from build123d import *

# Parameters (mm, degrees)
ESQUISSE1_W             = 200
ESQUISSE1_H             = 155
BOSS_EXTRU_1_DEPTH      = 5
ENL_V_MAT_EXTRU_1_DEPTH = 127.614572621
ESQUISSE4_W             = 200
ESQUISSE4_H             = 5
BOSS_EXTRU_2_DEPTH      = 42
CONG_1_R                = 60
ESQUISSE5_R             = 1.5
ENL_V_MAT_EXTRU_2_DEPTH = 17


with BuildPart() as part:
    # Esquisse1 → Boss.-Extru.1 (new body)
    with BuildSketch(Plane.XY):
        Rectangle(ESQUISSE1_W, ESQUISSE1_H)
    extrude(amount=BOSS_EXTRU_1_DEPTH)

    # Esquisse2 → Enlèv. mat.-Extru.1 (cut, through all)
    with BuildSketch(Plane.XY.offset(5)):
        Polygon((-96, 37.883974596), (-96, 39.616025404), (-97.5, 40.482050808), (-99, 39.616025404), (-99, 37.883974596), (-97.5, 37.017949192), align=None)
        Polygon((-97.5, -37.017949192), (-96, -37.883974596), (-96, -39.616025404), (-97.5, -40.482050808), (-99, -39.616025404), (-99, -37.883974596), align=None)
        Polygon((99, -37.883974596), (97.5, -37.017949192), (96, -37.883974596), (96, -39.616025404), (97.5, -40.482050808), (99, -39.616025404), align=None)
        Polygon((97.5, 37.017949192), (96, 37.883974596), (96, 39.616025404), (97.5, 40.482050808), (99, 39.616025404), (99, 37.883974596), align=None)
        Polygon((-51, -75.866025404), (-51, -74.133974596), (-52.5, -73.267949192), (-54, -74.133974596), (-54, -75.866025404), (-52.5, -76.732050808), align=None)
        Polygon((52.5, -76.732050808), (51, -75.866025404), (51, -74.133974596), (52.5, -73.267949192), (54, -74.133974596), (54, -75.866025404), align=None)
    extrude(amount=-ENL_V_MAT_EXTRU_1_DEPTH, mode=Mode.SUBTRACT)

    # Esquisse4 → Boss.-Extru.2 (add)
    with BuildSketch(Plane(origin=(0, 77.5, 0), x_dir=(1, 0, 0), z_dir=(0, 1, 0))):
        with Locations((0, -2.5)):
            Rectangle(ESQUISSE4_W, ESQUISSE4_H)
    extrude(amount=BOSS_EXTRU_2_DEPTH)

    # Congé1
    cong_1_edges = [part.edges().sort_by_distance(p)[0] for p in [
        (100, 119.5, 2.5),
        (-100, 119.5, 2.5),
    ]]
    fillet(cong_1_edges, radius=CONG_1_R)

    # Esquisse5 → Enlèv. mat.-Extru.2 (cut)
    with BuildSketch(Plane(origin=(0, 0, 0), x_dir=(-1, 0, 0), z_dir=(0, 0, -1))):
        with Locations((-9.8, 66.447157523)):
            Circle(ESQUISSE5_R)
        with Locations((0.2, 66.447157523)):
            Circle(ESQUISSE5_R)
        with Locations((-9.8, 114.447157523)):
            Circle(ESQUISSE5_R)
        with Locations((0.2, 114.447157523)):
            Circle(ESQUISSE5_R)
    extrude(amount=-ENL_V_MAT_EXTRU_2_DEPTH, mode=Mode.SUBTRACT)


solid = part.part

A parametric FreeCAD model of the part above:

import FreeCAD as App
import Part
import Sketcher

V = App.Vector
Q = App.Units.Quantity


def edges_at(feature, points):
    """Names of the edges that pass closest to the given points."""
    edges = feature.Shape.Edges
    near = lambda p: min(range(len(edges)), key=lambda i: edges[i].distToShape(Part.Vertex(*p))[0])
    return sorted({f"Edge{near(p) + 1}" for p in points})

doc = App.newDocument("Part")
params = doc.addObject("Spreadsheet::Sheet", "Params")
for row, (alias, value) in enumerate([
    ("sketch1_width", "200 mm"),
    ("sketch1_height", "155 mm"),
    ("pad1_length", "5 mm"),
    ("sketch3_width", "200 mm"),
    ("sketch3_height", "5 mm"),
    ("pad2_length", "42 mm"),
    ("fillet_radius", "60 mm"),
    ("sketch4_diameter", "3 mm"),
    ("pocket2_length", "17 mm"),
], start=1):
    params.set(f"A{row}", alias)
    params.set(f"B{row}", "=" + value)
    params.setAlias(f"B{row}", alias)

body = doc.addObject("PartDesign::Body", "Body")

# Sketch on XY plane
sketch1 = doc.addObject("Sketcher::SketchObject", "Sketch")
body.addObject(sketch1)
sketch1.AttachmentSupport = (doc.XY_Plane, [""])
sketch1.MapMode = "FlatFace"
sketch1.addGeometry(Part.LineSegment(V(-100, 78, 0), V(-100, -78, 0)), False)
sketch1.addGeometry(Part.LineSegment(V(-100, -78, 0), V(100, -78, 0)), False)
sketch1.addGeometry(Part.LineSegment(V(100, -78, 0), V(100, 78, 0)), False)
sketch1.addGeometry(Part.LineSegment(V(100, 78, 0), V(-100, 78, 0)), False)
sketch1.addConstraint(Sketcher.Constraint("Coincident", 0, 2, 1, 1))
sketch1.addConstraint(Sketcher.Constraint("Coincident", 1, 2, 2, 1))
sketch1.addConstraint(Sketcher.Constraint("Coincident", 2, 2, 3, 1))
sketch1.addConstraint(Sketcher.Constraint("Coincident", 3, 2, 0, 1))
sketch1.addConstraint(Sketcher.Constraint("Vertical", 0))
sketch1.addConstraint(Sketcher.Constraint("Horizontal", 1))
sketch1.addConstraint(Sketcher.Constraint("Vertical", 2))
sketch1.addConstraint(Sketcher.Constraint("Horizontal", 3))
sketch1.addConstraint(Sketcher.Constraint("Symmetric", 0, 2, 2, 2, -1, 1))
sketch1.addConstraint(Sketcher.Constraint("DistanceX", 1, 1, 1, 2, Q("200 mm")))
sketch1.addConstraint(Sketcher.Constraint("DistanceY", 0, 2, 0, 1, Q("155 mm")))
sketch1.setExpression("Constraints[9]", "Params.sketch1_width")
sketch1.setExpression("Constraints[10]", "Params.sketch1_height")
pad1 = doc.addObject("PartDesign::Pad", "Pad")
body.addObject(pad1)
pad1.Profile = sketch1
pad1.setExpression("Length", "Params.pad1_length")

# Sketch on XY plane
sketch2 = doc.addObject("Sketcher::SketchObject", "Sketch001")
body.addObject(sketch2)
sketch2.AttachmentSupport = (doc.XY_Plane, [""])
sketch2.MapMode = "FlatFace"
sketch2.AttachmentOffset = App.Placement(V(0, 0, 5), App.Rotation())
sketch2.addGeometry(Part.LineSegment(V(-96, 37.9, 0), V(-96, 39.6, 0)), False)
sketch2.addGeometry(Part.LineSegment(V(-96, 39.6, 0), V(-97.5, 40.5, 0)), False)
sketch2.addGeometry(Part.LineSegment(V(-97.5, 40.5, 0), V(-99, 39.6, 0)), False)
sketch2.addGeometry(Part.LineSegment(V(-99, 39.6, 0), V(-99, 37.9, 0)), False)
sketch2.addGeometry(Part.LineSegment(V(-99, 37.9, 0), V(-97.5, 37, 0)), False)
sketch2.addGeometry(Part.LineSegment(V(-97.5, 37, 0), V(-96, 37.9, 0)), False)
sketch2.addGeometry(Part.LineSegment(V(-96, -37.9, 0), V(-97.5, -37, 0)), False)
sketch2.addGeometry(Part.LineSegment(V(-97.5, -37, 0), V(-99, -37.9, 0)), False)
sketch2.addGeometry(Part.LineSegment(V(-99, -37.9, 0), V(-99, -39.6, 0)), False)
sketch2.addGeometry(Part.LineSegment(V(-99, -39.6, 0), V(-97.5, -40.5, 0)), False)
sketch2.addGeometry(Part.LineSegment(V(-97.5, -40.5, 0), V(-96, -39.6, 0)), False)
sketch2.addGeometry(Part.LineSegment(V(-96, -39.6, 0), V(-96, -37.9, 0)), False)
sketch2.addGeometry(Part.LineSegment(V(99, -37.9, 0), V(97.5, -37, 0)), False)
sketch2.addGeometry(Part.LineSegment(V(97.5, -37, 0), V(96, -37.9, 0)), False)
sketch2.addGeometry(Part.LineSegment(V(96, -37.9, 0), V(96, -39.6, 0)), False)
sketch2.addGeometry(Part.LineSegment(V(96, -39.6, 0), V(97.5, -40.5, 0)), False)
sketch2.addGeometry(Part.LineSegment(V(97.5, -40.5, 0), V(99, -39.6, 0)), False)
sketch2.addGeometry(Part.LineSegment(V(99, -39.6, 0), V(99, -37.9, 0)), False)
sketch2.addGeometry(Part.LineSegment(V(96, 37.9, 0), V(97.5, 37, 0)), False)
sketch2.addGeometry(Part.LineSegment(V(97.5, 37, 0), V(99, 37.9, 0)), False)
sketch2.addGeometry(Part.LineSegment(V(99, 37.9, 0), V(99, 39.6, 0)), False)
sketch2.addGeometry(Part.LineSegment(V(99, 39.6, 0), V(97.5, 40.5, 0)), False)
sketch2.addGeometry(Part.LineSegment(V(97.5, 40.5, 0), V(96, 39.6, 0)), False)
sketch2.addGeometry(Part.LineSegment(V(96, 39.6, 0), V(96, 37.9, 0)), False)
sketch2.addGeometry(Part.LineSegment(V(-51, -75.9, 0), V(-51, -74.1, 0)), False)
sketch2.addGeometry(Part.LineSegment(V(-51, -74.1, 0), V(-52.5, -73.3, 0)), False)
sketch2.addGeometry(Part.LineSegment(V(-52.5, -73.3, 0), V(-54, -74.1, 0)), False)
sketch2.addGeometry(Part.LineSegment(V(-54, -74.1, 0), V(-54, -75.9, 0)), False)
sketch2.addGeometry(Part.LineSegment(V(-54, -75.9, 0), V(-52.5, -76.7, 0)), False)
sketch2.addGeometry(Part.LineSegment(V(-52.5, -76.7, 0), V(-51, -75.9, 0)), False)
sketch2.addGeometry(Part.LineSegment(V(51, -75.9, 0), V(52.5, -76.7, 0)), False)
sketch2.addGeometry(Part.LineSegment(V(52.5, -76.7, 0), V(54, -75.9, 0)), False)
sketch2.addGeometry(Part.LineSegment(V(54, -75.9, 0), V(54, -74.1, 0)), False)
sketch2.addGeometry(Part.LineSegment(V(54, -74.1, 0), V(52.5, -73.3, 0)), False)
sketch2.addGeometry(Part.LineSegment(V(52.5, -73.3, 0), V(51, -74.1, 0)), False)
sketch2.addGeometry(Part.LineSegment(V(51, -74.1, 0), V(51, -75.9, 0)), False)
sketch2.addConstraint(Sketcher.Constraint("Coincident", 0, 2, 1, 1))
sketch2.addConstraint(Sketcher.Constraint("Coincident", 1, 2, 2, 1))
sketch2.addConstraint(Sketcher.Constraint("Coincident", 2, 2, 3, 1))
sketch2.addConstraint(Sketcher.Constraint("Coincident", 3, 2, 4, 1))
sketch2.addConstraint(Sketcher.Constraint("Coincident", 4, 2, 5, 1))
sketch2.addConstraint(Sketcher.Constraint("Coincident", 5, 2, 0, 1))
sketch2.addConstraint(Sketcher.Constraint("Coincident", 6, 2, 7, 1))
sketch2.addConstraint(Sketcher.Constraint("Coincident", 7, 2, 8, 1))
sketch2.addConstraint(Sketcher.Constraint("Coincident", 8, 2, 9, 1))
sketch2.addConstraint(Sketcher.Constraint("Coincident", 9, 2, 10, 1))
sketch2.addConstraint(Sketcher.Constraint("Coincident", 10, 2, 11, 1))
sketch2.addConstraint(Sketcher.Constraint("Coincident", 11, 2, 6, 1))
sketch2.addConstraint(Sketcher.Constraint("Coincident", 12, 2, 13, 1))
sketch2.addConstraint(Sketcher.Constraint("Coincident", 13, 2, 14, 1))
sketch2.addConstraint(Sketcher.Constraint("Coincident", 14, 2, 15, 1))
sketch2.addConstraint(Sketcher.Constraint("Coincident", 15, 2, 16, 1))
sketch2.addConstraint(Sketcher.Constraint("Coincident", 16, 2, 17, 1))
sketch2.addConstraint(Sketcher.Constraint("Coincident", 17, 2, 12, 1))
sketch2.addConstraint(Sketcher.Constraint("Coincident", 18, 2, 19, 1))
sketch2.addConstraint(Sketcher.Constraint("Coincident", 19, 2, 20, 1))
sketch2.addConstraint(Sketcher.Constraint("Coincident", 20, 2, 21, 1))
sketch2.addConstraint(Sketcher.Constraint("Coincident", 21, 2, 22, 1))
sketch2.addConstraint(Sketcher.Constraint("Coincident", 22, 2, 23, 1))
sketch2.addConstraint(Sketcher.Constraint("Coincident", 23, 2, 18, 1))
sketch2.addConstraint(Sketcher.Constraint("Coincident", 24, 2, 25, 1))
sketch2.addConstraint(Sketcher.Constraint("Coincident", 25, 2, 26, 1))
sketch2.addConstraint(Sketcher.Constraint("Coincident", 26, 2, 27, 1))
sketch2.addConstraint(Sketcher.Constraint("Coincident", 27, 2, 28, 1))
sketch2.addConstraint(Sketcher.Constraint("Coincident", 28, 2, 29, 1))
sketch2.addConstraint(Sketcher.Constraint("Coincident", 29, 2, 24, 1))
sketch2.addConstraint(Sketcher.Constraint("Coincident", 30, 2, 31, 1))
sketch2.addConstraint(Sketcher.Constraint("Coincident", 31, 2, 32, 1))
sketch2.addConstraint(Sketcher.Constraint("Coincident", 32, 2, 33, 1))
sketch2.addConstraint(Sketcher.Constraint("Coincident", 33, 2, 34, 1))
sketch2.addConstraint(Sketcher.Constraint("Coincident", 34, 2, 35, 1))
sketch2.addConstraint(Sketcher.Constraint("Coincident", 35, 2, 30, 1))
sketch2.addConstraint(Sketcher.Constraint("Vertical", 0))
sketch2.addConstraint(Sketcher.Constraint("Vertical", 3))
sketch2.addConstraint(Sketcher.Constraint("Vertical", 8))
sketch2.addConstraint(Sketcher.Constraint("Vertical", 11))
sketch2.addConstraint(Sketcher.Constraint("Vertical", 14))
sketch2.addConstraint(Sketcher.Constraint("Vertical", 17))
sketch2.addConstraint(Sketcher.Constraint("Vertical", 20))
sketch2.addConstraint(Sketcher.Constraint("Vertical", 23))
sketch2.addConstraint(Sketcher.Constraint("Vertical", 24))
sketch2.addConstraint(Sketcher.Constraint("Vertical", 27))
sketch2.addConstraint(Sketcher.Constraint("Vertical", 32))
sketch2.addConstraint(Sketcher.Constraint("Vertical", 35))
sketch2.addConstraint(Sketcher.Constraint("Symmetric", 4, 2, 12, 2, -1, 1))
sketch2.addConstraint(Sketcher.Constraint("Symmetric", 5, 2, 13, 2, -1, 1))
sketch2.addConstraint(Sketcher.Constraint("Symmetric", 1, 2, 15, 2, -1, 1))
sketch2.addConstraint(Sketcher.Constraint("Symmetric", 2, 2, 16, 2, -1, 1))
sketch2.addConstraint(Sketcher.Constraint("Symmetric", 6, 2, 18, 2, -1, 1))
sketch2.addConstraint(Sketcher.Constraint("Symmetric", 7, 2, 19, 2, -1, 1))
sketch2.addConstraint(Sketcher.Constraint("Symmetric", 9, 2, 21, 2, -1, 1))
sketch2.addConstraint(Sketcher.Constraint("Symmetric", 10, 2, 22, 2, -1, 1))
sketch2.addConstraint(Sketcher.Constraint("Symmetric", 6, 2, 12, 2, -2))
sketch2.addConstraint(Sketcher.Constraint("Symmetric", 11, 2, 13, 2, -2))
sketch2.addConstraint(Sketcher.Constraint("Symmetric", 9, 2, 15, 2, -2))
sketch2.addConstraint(Sketcher.Constraint("Symmetric", 8, 2, 16, 2, -2))
sketch2.addConstraint(Sketcher.Constraint("Symmetric", 28, 2, 30, 2, -2))
sketch2.addConstraint(Sketcher.Constraint("Symmetric", 27, 2, 31, 2, -2))
sketch2.addConstraint(Sketcher.Constraint("Symmetric", 25, 2, 33, 2, -2))
sketch2.addConstraint(Sketcher.Constraint("Symmetric", 24, 2, 34, 2, -2))
sketch2.addConstraint(Sketcher.Constraint("Parallel", 1, 4))
sketch2.addConstraint(Sketcher.Constraint("Parallel", 2, 5))
sketch2.addConstraint(Sketcher.Constraint("Parallel", 4, 6))
sketch2.addConstraint(Sketcher.Constraint("Parallel", 5, 7))
sketch2.addConstraint(Sketcher.Constraint("Parallel", 7, 10))
sketch2.addConstraint(Sketcher.Constraint("Parallel", 9, 12))
sketch2.addConstraint(Sketcher.Constraint("Parallel", 12, 15))
sketch2.addConstraint(Sketcher.Constraint("Parallel", 15, 18))
sketch2.addConstraint(Sketcher.Constraint("Parallel", 18, 21))
sketch2.addConstraint(Sketcher.Constraint("Parallel", 21, 25))
sketch2.addConstraint(Sketcher.Constraint("Parallel", 22, 26))
sketch2.addConstraint(Sketcher.Constraint("Parallel", 25, 28))
sketch2.addConstraint(Sketcher.Constraint("Parallel", 26, 29))
sketch2.addConstraint(Sketcher.Constraint("Parallel", 28, 30))
sketch2.addConstraint(Sketcher.Constraint("Parallel", 30, 33))
sketch2.addConstraint(Sketcher.Constraint("Horizontal", 0, 2, 2, 2))
sketch2.addConstraint(Sketcher.Constraint("Horizontal", 3, 2, 5, 2))
sketch2.addConstraint(Sketcher.Constraint("Horizontal", 24, 2, 26, 2))
sketch2.addConstraint(Sketcher.Constraint("Horizontal", 27, 2, 29, 2))
sketch2.addConstraint(Sketcher.Constraint("Equal", 23, 24))
sketch2.addConstraint(Sketcher.Constraint("Equal", 22, 25))
sketch2.addConstraint(Sketcher.Constraint("Angle", 1, Q("150 deg")))
sketch2.addConstraint(Sketcher.Constraint("DistanceX", 0, 2, -1, 1, Q("96 mm")))
sketch2.addConstraint(Sketcher.Constraint("DistanceX", 2, 2, -1, 1, Q("99 mm")))
sketch2.addConstraint(Sketcher.Constraint("DistanceX", 24, 2, -1, 1, Q("51 mm")))
sketch2.addConstraint(Sketcher.Constraint("DistanceY", 7, 2, 2, 2, Q("77.5 mm")))
sketch2.addConstraint(Sketcher.Constraint("DistanceY", 24, 2, 11, 2, Q("36.25 mm")))
sketch2.addConstraint(Sketcher.Constraint("DistanceY", 0, 1, 0, 2, Q("1.732051 mm")))
pocket1 = doc.addObject("PartDesign::Pocket", "Pocket")
body.addObject(pocket1)
pocket1.Profile = sketch2
pocket1.Type = "ThroughAll"

# Sketch on XZ plane
sketch3 = doc.addObject("Sketcher::SketchObject", "Sketch002")
body.addObject(sketch3)
sketch3.AttachmentSupport = (doc.XZ_Plane, [""])
sketch3.MapMode = "FlatFace"
sketch3.AttachmentOffset = App.Placement(V(0, 0, -77.5), App.Rotation())
sketch3.addGeometry(Part.LineSegment(V(-100, 0, 0), V(-100, 5, 0)), False)
sketch3.addGeometry(Part.LineSegment(V(-100, 5, 0), V(100, 5, 0)), False)
sketch3.addGeometry(Part.LineSegment(V(100, 5, 0), V(100, 0, 0)), False)
sketch3.addGeometry(Part.LineSegment(V(100, 0, 0), V(-100, 0, 0)), False)
sketch3.addConstraint(Sketcher.Constraint("Coincident", 0, 2, 1, 1))
sketch3.addConstraint(Sketcher.Constraint("Coincident", 1, 2, 2, 1))
sketch3.addConstraint(Sketcher.Constraint("Coincident", 2, 2, 3, 1))
sketch3.addConstraint(Sketcher.Constraint("Coincident", 3, 2, 0, 1))
sketch3.addConstraint(Sketcher.Constraint("Vertical", 0))
sketch3.addConstraint(Sketcher.Constraint("Horizontal", 1))
sketch3.addConstraint(Sketcher.Constraint("Vertical", 2))
sketch3.addConstraint(Sketcher.Constraint("Horizontal", 3))
sketch3.addConstraint(Sketcher.Constraint("Symmetric", 2, 2, 3, 2, -1, 1))
sketch3.addConstraint(Sketcher.Constraint("DistanceX", 1, 1, 1, 2, Q("200 mm")))
sketch3.addConstraint(Sketcher.Constraint("DistanceY", 0, 1, 0, 2, Q("5 mm")))
sketch3.setExpression("Constraints[9]", "Params.sketch3_width")
sketch3.setExpression("Constraints[10]", "Params.sketch3_height")
pad2 = doc.addObject("PartDesign::Pad", "Pad001")
body.addObject(pad2)
pad2.Profile = sketch3
pad2.setExpression("Length", "Params.pad2_length")
pad2.Reversed = True
doc.recompute()

fillet = doc.addObject("PartDesign::Fillet", "Fillet")
body.addObject(fillet)
fillet.Base = (pad2, edges_at(pad2, [(100, 119.5, 2.5), (-100, 119.5, 2.5)]))
fillet.setExpression("Radius", "Params.fillet_radius")

# Sketch on XY plane
sketch4 = doc.addObject("Sketcher::SketchObject", "Sketch003")
body.addObject(sketch4)
sketch4.AttachmentSupport = (doc.XY_Plane, [""])
sketch4.MapMode = "FlatFace"
sketch4.addGeometry(Part.Circle(V(9.8, 66.4, 0), V(0, 0, 1), 1.5), False)
sketch4.addGeometry(Part.Circle(V(-0.2, 66.4, 0), V(0, 0, 1), 1.5), False)
sketch4.addGeometry(Part.Circle(V(9.8, 114.4, 0), V(0, 0, 1), 1.5), False)
sketch4.addGeometry(Part.Circle(V(-0.2, 114.4, 0), V(0, 0, 1), 1.5), False)
sketch4.addConstraint(Sketcher.Constraint("Equal", 0, 1))
sketch4.addConstraint(Sketcher.Constraint("Equal", 1, 2))
sketch4.addConstraint(Sketcher.Constraint("Equal", 2, 3))
sketch4.addConstraint(Sketcher.Constraint("Horizontal", 0, 3, 1, 3))
sketch4.addConstraint(Sketcher.Constraint("Horizontal", 2, 3, 3, 3))
sketch4.addConstraint(Sketcher.Constraint("Vertical", 0, 3, 2, 3))
sketch4.addConstraint(Sketcher.Constraint("Vertical", 1, 3, 3, 3))
sketch4.addConstraint(Sketcher.Constraint("Diameter", 0, Q("3 mm")))
sketch4.addConstraint(Sketcher.Constraint("DistanceX", 1, 3, 0, 3, Q("10 mm")))
sketch4.addConstraint(Sketcher.Constraint("DistanceY", 0, 3, 2, 3, Q("48 mm")))
sketch4.addConstraint(Sketcher.Constraint("DistanceX", -1, 1, 0, 3, Q("9.8 mm")))
sketch4.addConstraint(Sketcher.Constraint("DistanceY", -1, 1, 0, 3, Q("66.447158 mm")))
sketch4.setExpression("Constraints[7]", "Params.sketch4_diameter")
pocket2 = doc.addObject("PartDesign::Pocket", "Pocket001")
body.addObject(pocket2)
pocket2.Profile = sketch4
pocket2.setExpression("Length", "Params.pocket2_length")
pocket2.Reversed = True

doc.recompute()
